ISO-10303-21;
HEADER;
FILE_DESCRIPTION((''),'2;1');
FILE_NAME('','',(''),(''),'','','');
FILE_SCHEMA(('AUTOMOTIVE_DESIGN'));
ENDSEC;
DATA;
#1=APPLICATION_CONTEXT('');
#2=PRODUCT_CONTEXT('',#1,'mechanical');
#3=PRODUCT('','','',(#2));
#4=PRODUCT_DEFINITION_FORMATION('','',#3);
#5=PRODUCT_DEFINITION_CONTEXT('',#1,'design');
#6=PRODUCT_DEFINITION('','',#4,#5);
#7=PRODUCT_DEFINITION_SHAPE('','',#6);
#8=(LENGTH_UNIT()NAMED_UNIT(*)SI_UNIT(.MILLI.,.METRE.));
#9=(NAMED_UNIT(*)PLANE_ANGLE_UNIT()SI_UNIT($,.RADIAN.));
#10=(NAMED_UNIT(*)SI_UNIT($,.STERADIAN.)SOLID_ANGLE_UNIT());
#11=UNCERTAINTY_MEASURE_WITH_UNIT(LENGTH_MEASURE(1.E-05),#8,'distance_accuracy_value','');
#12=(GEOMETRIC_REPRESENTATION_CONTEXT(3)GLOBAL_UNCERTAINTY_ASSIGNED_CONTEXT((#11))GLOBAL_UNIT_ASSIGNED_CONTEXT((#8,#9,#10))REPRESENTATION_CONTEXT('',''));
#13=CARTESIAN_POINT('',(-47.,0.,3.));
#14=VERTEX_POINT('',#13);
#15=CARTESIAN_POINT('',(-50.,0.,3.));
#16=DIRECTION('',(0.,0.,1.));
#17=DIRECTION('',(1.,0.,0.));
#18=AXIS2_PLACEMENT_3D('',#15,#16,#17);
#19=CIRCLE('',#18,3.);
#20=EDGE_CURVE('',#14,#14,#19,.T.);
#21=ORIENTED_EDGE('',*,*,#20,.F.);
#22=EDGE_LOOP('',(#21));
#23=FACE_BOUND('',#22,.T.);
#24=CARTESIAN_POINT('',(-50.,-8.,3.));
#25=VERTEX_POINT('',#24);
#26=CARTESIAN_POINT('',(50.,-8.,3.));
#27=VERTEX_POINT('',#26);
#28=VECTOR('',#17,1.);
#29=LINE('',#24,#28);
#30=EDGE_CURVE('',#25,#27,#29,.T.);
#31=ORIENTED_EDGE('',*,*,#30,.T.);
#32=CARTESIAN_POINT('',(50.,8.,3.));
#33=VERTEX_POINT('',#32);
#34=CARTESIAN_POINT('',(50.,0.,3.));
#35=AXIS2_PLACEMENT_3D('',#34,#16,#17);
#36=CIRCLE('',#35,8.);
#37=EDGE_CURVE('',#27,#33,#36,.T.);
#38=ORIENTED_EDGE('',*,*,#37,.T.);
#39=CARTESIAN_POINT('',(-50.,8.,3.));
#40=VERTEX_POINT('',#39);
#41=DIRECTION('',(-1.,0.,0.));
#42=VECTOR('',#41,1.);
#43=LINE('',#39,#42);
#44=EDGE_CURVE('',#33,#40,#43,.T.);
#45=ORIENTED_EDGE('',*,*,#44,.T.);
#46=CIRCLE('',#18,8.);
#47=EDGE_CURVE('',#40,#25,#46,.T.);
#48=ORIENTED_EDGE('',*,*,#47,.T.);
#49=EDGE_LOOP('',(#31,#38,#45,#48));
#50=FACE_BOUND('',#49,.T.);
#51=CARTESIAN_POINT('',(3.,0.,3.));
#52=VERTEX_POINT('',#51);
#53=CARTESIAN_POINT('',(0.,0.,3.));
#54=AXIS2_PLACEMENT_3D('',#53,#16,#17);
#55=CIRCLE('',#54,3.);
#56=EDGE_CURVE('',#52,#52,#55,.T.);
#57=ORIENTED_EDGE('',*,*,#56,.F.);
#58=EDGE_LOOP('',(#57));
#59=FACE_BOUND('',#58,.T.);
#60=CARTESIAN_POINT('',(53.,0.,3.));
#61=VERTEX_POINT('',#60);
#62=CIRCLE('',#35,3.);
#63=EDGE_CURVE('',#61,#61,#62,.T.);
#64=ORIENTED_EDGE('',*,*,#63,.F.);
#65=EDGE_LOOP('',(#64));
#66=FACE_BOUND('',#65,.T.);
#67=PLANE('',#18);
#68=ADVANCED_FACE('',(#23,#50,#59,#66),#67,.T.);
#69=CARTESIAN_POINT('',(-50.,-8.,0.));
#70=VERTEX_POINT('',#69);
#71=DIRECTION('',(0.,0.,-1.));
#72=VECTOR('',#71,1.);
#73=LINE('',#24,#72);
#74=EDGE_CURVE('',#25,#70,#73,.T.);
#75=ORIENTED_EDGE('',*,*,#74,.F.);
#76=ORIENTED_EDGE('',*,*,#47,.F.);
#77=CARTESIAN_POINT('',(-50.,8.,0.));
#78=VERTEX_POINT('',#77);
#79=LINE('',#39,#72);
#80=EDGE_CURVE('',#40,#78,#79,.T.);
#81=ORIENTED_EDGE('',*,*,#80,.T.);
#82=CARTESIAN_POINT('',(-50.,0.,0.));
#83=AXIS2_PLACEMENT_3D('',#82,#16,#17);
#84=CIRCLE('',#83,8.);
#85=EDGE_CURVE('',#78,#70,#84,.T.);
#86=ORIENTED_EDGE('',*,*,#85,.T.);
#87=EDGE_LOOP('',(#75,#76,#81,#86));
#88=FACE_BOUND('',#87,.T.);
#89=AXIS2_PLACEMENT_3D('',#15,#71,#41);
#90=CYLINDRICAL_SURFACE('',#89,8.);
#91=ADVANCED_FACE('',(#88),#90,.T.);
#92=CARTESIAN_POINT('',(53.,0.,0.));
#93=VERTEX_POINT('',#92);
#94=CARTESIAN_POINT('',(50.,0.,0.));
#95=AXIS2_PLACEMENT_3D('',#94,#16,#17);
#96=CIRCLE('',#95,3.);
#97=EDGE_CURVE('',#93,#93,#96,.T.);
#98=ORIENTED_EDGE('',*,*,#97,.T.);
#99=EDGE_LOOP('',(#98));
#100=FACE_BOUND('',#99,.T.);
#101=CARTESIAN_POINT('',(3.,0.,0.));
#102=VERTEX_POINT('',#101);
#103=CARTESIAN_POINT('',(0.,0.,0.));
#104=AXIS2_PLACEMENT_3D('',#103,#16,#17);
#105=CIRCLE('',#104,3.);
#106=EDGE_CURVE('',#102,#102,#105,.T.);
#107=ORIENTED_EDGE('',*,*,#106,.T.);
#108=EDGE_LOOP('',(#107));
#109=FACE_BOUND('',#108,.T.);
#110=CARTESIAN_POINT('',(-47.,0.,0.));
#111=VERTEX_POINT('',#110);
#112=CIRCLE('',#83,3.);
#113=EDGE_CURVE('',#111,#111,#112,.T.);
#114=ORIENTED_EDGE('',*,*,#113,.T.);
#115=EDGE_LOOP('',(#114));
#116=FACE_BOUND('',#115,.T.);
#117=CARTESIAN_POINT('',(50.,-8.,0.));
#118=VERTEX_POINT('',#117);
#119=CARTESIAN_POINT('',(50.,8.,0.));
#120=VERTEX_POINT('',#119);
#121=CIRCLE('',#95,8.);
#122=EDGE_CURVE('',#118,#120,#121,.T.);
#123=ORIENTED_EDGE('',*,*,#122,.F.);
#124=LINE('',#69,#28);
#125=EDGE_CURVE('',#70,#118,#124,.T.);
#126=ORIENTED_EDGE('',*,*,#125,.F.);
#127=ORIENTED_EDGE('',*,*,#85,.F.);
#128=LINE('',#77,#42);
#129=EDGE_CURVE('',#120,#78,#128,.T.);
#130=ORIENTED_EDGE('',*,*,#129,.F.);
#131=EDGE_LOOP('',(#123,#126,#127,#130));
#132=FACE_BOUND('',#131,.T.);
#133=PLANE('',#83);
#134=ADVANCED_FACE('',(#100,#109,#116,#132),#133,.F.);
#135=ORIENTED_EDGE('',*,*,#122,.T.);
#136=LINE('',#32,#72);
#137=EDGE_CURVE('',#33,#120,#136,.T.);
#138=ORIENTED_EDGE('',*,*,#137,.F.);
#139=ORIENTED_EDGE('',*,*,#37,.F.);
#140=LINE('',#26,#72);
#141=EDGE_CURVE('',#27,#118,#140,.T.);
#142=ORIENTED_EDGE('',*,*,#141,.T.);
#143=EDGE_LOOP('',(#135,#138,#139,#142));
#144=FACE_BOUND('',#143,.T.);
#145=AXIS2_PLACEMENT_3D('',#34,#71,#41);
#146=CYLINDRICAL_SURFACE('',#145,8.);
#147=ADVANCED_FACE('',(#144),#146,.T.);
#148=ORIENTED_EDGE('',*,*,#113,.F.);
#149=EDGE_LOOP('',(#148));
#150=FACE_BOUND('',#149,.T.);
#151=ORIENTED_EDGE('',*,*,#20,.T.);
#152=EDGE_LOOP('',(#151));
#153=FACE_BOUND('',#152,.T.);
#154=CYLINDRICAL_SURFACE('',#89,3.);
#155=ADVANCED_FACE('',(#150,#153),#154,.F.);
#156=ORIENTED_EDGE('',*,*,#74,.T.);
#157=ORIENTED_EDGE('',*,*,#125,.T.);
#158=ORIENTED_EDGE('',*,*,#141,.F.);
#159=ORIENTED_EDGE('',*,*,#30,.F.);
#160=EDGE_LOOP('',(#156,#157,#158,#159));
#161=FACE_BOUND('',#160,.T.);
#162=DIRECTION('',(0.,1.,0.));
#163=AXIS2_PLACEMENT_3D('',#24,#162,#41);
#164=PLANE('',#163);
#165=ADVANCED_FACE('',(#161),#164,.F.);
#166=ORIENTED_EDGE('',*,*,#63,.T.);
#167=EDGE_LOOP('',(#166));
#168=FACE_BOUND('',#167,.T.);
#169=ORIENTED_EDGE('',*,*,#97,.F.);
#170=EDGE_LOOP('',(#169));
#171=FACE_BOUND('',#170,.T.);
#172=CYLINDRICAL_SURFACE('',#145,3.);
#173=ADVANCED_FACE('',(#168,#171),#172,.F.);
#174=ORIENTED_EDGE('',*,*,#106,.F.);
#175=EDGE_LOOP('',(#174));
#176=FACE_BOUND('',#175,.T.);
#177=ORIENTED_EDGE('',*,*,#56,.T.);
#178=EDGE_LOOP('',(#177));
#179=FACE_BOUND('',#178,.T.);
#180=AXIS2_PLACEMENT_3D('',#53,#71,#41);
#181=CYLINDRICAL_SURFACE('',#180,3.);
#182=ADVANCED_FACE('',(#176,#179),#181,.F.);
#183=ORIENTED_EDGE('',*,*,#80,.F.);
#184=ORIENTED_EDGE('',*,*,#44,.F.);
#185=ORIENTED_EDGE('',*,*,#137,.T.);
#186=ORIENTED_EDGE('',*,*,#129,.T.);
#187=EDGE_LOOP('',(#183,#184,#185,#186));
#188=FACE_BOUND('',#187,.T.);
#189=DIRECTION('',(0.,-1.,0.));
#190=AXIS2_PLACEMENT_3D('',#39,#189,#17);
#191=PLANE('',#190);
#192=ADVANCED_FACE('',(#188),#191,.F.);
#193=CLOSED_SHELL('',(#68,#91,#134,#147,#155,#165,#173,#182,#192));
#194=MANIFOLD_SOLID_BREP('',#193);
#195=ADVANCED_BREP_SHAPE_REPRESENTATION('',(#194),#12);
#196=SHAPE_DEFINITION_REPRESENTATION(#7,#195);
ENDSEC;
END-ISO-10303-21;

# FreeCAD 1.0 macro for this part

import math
import FreeCAD as App
import Part
import Sketcher
from FreeCAD import Vector

doc = App.newDocument("Part")
params = doc.addObject("Spreadsheet::Sheet", "Params")
for row, (alias, value) in enumerate([
    ("sketch1_diameter", "6 mm"),
    ("sketch1_radius", "8 mm"),
    ("sketch1_width", "100 mm"),
    ("pad1_length", "3 mm"),
], start=1):
    params.set(f"A{row}", alias)
    params.set(f"B{row}", "=" + value)
    params.setAlias(f"B{row}", alias)

body = doc.addObject("PartDesign::Body", "Body")

sketch1 = body.newObject("Sketcher::SketchObject", "Sketch")
sketch1.AttachmentSupport = (doc.getObject("XY_Plane"), [""])
sketch1.MapMode = "FlatFace"
sketch1.addGeometry([
    Part.LineSegment(Vector(50, 8, 0), Vector(-50, 8, 0)),
    Part.ArcOfCircle(Part.Circle(Vector(-50, 0, 0), Vector(0, 0, 1), 8), math.radians(90), math.radians(270)),
    Part.LineSegment(Vector(-50, -8, 0), Vector(50, -8, 0)),
    Part.ArcOfCircle(Part.Circle(Vector(50, 0, 0), Vector(0, 0, 1), 8), math.radians(-90), math.radians(90)),
    Part.Circle(Vector(50, 0, 0), Vector(0, 0, 1), 3),
    Part.Circle(Vector(0, 0, 0), Vector(0, 0, 1), 3),
    Part.Circle(Vector(-50, 0, 0), Vector(0, 0, 1), 3),
], False)
sketch1.addConstraint([
    Sketcher.Constraint("Tangent", 0, 2, 1, 1),
    Sketcher.Constraint("Tangent", 1, 2, 2, 1),
    Sketcher.Constraint("Tangent", 2, 2, 3, 1),
    Sketcher.Constraint("Tangent", 3, 2, 0, 1),
    Sketcher.Constraint("Horizontal", 0),
    Sketcher.Constraint("Horizontal", 2),
    Sketcher.Constraint("Coincident", 5, 3, -1, 1),
    Sketcher.Constraint("Coincident", 4, 3, 3, 3),
    Sketcher.Constraint("Coincident", 6, 3, 1, 3),
    Sketcher.Constraint("Equal", 4, 5),
    Sketcher.Constraint("Equal", 5, 6),
    Sketcher.Constraint("Symmetric", 1, 3, 3, 3, -1, 1),
    Sketcher.Constraint("Diameter", 4, 6.0),
    Sketcher.Constraint("Radius", 1, 8.0),
    Sketcher.Constraint("DistanceX", 0, 2, 0, 1, 100.0),
])
sketch1.setExpression("Constraints[12]", "Params.sketch1_diameter")
sketch1.setExpression("Constraints[13]", "Params.sketch1_radius")
sketch1.setExpression("Constraints[14]", "Params.sketch1_width")
pad1 = body.newObject("PartDesign::Pad", "Pad")
pad1.Profile = sketch1
pad1.setExpression("Length", "Params.pad1_length")

doc.recompute()
